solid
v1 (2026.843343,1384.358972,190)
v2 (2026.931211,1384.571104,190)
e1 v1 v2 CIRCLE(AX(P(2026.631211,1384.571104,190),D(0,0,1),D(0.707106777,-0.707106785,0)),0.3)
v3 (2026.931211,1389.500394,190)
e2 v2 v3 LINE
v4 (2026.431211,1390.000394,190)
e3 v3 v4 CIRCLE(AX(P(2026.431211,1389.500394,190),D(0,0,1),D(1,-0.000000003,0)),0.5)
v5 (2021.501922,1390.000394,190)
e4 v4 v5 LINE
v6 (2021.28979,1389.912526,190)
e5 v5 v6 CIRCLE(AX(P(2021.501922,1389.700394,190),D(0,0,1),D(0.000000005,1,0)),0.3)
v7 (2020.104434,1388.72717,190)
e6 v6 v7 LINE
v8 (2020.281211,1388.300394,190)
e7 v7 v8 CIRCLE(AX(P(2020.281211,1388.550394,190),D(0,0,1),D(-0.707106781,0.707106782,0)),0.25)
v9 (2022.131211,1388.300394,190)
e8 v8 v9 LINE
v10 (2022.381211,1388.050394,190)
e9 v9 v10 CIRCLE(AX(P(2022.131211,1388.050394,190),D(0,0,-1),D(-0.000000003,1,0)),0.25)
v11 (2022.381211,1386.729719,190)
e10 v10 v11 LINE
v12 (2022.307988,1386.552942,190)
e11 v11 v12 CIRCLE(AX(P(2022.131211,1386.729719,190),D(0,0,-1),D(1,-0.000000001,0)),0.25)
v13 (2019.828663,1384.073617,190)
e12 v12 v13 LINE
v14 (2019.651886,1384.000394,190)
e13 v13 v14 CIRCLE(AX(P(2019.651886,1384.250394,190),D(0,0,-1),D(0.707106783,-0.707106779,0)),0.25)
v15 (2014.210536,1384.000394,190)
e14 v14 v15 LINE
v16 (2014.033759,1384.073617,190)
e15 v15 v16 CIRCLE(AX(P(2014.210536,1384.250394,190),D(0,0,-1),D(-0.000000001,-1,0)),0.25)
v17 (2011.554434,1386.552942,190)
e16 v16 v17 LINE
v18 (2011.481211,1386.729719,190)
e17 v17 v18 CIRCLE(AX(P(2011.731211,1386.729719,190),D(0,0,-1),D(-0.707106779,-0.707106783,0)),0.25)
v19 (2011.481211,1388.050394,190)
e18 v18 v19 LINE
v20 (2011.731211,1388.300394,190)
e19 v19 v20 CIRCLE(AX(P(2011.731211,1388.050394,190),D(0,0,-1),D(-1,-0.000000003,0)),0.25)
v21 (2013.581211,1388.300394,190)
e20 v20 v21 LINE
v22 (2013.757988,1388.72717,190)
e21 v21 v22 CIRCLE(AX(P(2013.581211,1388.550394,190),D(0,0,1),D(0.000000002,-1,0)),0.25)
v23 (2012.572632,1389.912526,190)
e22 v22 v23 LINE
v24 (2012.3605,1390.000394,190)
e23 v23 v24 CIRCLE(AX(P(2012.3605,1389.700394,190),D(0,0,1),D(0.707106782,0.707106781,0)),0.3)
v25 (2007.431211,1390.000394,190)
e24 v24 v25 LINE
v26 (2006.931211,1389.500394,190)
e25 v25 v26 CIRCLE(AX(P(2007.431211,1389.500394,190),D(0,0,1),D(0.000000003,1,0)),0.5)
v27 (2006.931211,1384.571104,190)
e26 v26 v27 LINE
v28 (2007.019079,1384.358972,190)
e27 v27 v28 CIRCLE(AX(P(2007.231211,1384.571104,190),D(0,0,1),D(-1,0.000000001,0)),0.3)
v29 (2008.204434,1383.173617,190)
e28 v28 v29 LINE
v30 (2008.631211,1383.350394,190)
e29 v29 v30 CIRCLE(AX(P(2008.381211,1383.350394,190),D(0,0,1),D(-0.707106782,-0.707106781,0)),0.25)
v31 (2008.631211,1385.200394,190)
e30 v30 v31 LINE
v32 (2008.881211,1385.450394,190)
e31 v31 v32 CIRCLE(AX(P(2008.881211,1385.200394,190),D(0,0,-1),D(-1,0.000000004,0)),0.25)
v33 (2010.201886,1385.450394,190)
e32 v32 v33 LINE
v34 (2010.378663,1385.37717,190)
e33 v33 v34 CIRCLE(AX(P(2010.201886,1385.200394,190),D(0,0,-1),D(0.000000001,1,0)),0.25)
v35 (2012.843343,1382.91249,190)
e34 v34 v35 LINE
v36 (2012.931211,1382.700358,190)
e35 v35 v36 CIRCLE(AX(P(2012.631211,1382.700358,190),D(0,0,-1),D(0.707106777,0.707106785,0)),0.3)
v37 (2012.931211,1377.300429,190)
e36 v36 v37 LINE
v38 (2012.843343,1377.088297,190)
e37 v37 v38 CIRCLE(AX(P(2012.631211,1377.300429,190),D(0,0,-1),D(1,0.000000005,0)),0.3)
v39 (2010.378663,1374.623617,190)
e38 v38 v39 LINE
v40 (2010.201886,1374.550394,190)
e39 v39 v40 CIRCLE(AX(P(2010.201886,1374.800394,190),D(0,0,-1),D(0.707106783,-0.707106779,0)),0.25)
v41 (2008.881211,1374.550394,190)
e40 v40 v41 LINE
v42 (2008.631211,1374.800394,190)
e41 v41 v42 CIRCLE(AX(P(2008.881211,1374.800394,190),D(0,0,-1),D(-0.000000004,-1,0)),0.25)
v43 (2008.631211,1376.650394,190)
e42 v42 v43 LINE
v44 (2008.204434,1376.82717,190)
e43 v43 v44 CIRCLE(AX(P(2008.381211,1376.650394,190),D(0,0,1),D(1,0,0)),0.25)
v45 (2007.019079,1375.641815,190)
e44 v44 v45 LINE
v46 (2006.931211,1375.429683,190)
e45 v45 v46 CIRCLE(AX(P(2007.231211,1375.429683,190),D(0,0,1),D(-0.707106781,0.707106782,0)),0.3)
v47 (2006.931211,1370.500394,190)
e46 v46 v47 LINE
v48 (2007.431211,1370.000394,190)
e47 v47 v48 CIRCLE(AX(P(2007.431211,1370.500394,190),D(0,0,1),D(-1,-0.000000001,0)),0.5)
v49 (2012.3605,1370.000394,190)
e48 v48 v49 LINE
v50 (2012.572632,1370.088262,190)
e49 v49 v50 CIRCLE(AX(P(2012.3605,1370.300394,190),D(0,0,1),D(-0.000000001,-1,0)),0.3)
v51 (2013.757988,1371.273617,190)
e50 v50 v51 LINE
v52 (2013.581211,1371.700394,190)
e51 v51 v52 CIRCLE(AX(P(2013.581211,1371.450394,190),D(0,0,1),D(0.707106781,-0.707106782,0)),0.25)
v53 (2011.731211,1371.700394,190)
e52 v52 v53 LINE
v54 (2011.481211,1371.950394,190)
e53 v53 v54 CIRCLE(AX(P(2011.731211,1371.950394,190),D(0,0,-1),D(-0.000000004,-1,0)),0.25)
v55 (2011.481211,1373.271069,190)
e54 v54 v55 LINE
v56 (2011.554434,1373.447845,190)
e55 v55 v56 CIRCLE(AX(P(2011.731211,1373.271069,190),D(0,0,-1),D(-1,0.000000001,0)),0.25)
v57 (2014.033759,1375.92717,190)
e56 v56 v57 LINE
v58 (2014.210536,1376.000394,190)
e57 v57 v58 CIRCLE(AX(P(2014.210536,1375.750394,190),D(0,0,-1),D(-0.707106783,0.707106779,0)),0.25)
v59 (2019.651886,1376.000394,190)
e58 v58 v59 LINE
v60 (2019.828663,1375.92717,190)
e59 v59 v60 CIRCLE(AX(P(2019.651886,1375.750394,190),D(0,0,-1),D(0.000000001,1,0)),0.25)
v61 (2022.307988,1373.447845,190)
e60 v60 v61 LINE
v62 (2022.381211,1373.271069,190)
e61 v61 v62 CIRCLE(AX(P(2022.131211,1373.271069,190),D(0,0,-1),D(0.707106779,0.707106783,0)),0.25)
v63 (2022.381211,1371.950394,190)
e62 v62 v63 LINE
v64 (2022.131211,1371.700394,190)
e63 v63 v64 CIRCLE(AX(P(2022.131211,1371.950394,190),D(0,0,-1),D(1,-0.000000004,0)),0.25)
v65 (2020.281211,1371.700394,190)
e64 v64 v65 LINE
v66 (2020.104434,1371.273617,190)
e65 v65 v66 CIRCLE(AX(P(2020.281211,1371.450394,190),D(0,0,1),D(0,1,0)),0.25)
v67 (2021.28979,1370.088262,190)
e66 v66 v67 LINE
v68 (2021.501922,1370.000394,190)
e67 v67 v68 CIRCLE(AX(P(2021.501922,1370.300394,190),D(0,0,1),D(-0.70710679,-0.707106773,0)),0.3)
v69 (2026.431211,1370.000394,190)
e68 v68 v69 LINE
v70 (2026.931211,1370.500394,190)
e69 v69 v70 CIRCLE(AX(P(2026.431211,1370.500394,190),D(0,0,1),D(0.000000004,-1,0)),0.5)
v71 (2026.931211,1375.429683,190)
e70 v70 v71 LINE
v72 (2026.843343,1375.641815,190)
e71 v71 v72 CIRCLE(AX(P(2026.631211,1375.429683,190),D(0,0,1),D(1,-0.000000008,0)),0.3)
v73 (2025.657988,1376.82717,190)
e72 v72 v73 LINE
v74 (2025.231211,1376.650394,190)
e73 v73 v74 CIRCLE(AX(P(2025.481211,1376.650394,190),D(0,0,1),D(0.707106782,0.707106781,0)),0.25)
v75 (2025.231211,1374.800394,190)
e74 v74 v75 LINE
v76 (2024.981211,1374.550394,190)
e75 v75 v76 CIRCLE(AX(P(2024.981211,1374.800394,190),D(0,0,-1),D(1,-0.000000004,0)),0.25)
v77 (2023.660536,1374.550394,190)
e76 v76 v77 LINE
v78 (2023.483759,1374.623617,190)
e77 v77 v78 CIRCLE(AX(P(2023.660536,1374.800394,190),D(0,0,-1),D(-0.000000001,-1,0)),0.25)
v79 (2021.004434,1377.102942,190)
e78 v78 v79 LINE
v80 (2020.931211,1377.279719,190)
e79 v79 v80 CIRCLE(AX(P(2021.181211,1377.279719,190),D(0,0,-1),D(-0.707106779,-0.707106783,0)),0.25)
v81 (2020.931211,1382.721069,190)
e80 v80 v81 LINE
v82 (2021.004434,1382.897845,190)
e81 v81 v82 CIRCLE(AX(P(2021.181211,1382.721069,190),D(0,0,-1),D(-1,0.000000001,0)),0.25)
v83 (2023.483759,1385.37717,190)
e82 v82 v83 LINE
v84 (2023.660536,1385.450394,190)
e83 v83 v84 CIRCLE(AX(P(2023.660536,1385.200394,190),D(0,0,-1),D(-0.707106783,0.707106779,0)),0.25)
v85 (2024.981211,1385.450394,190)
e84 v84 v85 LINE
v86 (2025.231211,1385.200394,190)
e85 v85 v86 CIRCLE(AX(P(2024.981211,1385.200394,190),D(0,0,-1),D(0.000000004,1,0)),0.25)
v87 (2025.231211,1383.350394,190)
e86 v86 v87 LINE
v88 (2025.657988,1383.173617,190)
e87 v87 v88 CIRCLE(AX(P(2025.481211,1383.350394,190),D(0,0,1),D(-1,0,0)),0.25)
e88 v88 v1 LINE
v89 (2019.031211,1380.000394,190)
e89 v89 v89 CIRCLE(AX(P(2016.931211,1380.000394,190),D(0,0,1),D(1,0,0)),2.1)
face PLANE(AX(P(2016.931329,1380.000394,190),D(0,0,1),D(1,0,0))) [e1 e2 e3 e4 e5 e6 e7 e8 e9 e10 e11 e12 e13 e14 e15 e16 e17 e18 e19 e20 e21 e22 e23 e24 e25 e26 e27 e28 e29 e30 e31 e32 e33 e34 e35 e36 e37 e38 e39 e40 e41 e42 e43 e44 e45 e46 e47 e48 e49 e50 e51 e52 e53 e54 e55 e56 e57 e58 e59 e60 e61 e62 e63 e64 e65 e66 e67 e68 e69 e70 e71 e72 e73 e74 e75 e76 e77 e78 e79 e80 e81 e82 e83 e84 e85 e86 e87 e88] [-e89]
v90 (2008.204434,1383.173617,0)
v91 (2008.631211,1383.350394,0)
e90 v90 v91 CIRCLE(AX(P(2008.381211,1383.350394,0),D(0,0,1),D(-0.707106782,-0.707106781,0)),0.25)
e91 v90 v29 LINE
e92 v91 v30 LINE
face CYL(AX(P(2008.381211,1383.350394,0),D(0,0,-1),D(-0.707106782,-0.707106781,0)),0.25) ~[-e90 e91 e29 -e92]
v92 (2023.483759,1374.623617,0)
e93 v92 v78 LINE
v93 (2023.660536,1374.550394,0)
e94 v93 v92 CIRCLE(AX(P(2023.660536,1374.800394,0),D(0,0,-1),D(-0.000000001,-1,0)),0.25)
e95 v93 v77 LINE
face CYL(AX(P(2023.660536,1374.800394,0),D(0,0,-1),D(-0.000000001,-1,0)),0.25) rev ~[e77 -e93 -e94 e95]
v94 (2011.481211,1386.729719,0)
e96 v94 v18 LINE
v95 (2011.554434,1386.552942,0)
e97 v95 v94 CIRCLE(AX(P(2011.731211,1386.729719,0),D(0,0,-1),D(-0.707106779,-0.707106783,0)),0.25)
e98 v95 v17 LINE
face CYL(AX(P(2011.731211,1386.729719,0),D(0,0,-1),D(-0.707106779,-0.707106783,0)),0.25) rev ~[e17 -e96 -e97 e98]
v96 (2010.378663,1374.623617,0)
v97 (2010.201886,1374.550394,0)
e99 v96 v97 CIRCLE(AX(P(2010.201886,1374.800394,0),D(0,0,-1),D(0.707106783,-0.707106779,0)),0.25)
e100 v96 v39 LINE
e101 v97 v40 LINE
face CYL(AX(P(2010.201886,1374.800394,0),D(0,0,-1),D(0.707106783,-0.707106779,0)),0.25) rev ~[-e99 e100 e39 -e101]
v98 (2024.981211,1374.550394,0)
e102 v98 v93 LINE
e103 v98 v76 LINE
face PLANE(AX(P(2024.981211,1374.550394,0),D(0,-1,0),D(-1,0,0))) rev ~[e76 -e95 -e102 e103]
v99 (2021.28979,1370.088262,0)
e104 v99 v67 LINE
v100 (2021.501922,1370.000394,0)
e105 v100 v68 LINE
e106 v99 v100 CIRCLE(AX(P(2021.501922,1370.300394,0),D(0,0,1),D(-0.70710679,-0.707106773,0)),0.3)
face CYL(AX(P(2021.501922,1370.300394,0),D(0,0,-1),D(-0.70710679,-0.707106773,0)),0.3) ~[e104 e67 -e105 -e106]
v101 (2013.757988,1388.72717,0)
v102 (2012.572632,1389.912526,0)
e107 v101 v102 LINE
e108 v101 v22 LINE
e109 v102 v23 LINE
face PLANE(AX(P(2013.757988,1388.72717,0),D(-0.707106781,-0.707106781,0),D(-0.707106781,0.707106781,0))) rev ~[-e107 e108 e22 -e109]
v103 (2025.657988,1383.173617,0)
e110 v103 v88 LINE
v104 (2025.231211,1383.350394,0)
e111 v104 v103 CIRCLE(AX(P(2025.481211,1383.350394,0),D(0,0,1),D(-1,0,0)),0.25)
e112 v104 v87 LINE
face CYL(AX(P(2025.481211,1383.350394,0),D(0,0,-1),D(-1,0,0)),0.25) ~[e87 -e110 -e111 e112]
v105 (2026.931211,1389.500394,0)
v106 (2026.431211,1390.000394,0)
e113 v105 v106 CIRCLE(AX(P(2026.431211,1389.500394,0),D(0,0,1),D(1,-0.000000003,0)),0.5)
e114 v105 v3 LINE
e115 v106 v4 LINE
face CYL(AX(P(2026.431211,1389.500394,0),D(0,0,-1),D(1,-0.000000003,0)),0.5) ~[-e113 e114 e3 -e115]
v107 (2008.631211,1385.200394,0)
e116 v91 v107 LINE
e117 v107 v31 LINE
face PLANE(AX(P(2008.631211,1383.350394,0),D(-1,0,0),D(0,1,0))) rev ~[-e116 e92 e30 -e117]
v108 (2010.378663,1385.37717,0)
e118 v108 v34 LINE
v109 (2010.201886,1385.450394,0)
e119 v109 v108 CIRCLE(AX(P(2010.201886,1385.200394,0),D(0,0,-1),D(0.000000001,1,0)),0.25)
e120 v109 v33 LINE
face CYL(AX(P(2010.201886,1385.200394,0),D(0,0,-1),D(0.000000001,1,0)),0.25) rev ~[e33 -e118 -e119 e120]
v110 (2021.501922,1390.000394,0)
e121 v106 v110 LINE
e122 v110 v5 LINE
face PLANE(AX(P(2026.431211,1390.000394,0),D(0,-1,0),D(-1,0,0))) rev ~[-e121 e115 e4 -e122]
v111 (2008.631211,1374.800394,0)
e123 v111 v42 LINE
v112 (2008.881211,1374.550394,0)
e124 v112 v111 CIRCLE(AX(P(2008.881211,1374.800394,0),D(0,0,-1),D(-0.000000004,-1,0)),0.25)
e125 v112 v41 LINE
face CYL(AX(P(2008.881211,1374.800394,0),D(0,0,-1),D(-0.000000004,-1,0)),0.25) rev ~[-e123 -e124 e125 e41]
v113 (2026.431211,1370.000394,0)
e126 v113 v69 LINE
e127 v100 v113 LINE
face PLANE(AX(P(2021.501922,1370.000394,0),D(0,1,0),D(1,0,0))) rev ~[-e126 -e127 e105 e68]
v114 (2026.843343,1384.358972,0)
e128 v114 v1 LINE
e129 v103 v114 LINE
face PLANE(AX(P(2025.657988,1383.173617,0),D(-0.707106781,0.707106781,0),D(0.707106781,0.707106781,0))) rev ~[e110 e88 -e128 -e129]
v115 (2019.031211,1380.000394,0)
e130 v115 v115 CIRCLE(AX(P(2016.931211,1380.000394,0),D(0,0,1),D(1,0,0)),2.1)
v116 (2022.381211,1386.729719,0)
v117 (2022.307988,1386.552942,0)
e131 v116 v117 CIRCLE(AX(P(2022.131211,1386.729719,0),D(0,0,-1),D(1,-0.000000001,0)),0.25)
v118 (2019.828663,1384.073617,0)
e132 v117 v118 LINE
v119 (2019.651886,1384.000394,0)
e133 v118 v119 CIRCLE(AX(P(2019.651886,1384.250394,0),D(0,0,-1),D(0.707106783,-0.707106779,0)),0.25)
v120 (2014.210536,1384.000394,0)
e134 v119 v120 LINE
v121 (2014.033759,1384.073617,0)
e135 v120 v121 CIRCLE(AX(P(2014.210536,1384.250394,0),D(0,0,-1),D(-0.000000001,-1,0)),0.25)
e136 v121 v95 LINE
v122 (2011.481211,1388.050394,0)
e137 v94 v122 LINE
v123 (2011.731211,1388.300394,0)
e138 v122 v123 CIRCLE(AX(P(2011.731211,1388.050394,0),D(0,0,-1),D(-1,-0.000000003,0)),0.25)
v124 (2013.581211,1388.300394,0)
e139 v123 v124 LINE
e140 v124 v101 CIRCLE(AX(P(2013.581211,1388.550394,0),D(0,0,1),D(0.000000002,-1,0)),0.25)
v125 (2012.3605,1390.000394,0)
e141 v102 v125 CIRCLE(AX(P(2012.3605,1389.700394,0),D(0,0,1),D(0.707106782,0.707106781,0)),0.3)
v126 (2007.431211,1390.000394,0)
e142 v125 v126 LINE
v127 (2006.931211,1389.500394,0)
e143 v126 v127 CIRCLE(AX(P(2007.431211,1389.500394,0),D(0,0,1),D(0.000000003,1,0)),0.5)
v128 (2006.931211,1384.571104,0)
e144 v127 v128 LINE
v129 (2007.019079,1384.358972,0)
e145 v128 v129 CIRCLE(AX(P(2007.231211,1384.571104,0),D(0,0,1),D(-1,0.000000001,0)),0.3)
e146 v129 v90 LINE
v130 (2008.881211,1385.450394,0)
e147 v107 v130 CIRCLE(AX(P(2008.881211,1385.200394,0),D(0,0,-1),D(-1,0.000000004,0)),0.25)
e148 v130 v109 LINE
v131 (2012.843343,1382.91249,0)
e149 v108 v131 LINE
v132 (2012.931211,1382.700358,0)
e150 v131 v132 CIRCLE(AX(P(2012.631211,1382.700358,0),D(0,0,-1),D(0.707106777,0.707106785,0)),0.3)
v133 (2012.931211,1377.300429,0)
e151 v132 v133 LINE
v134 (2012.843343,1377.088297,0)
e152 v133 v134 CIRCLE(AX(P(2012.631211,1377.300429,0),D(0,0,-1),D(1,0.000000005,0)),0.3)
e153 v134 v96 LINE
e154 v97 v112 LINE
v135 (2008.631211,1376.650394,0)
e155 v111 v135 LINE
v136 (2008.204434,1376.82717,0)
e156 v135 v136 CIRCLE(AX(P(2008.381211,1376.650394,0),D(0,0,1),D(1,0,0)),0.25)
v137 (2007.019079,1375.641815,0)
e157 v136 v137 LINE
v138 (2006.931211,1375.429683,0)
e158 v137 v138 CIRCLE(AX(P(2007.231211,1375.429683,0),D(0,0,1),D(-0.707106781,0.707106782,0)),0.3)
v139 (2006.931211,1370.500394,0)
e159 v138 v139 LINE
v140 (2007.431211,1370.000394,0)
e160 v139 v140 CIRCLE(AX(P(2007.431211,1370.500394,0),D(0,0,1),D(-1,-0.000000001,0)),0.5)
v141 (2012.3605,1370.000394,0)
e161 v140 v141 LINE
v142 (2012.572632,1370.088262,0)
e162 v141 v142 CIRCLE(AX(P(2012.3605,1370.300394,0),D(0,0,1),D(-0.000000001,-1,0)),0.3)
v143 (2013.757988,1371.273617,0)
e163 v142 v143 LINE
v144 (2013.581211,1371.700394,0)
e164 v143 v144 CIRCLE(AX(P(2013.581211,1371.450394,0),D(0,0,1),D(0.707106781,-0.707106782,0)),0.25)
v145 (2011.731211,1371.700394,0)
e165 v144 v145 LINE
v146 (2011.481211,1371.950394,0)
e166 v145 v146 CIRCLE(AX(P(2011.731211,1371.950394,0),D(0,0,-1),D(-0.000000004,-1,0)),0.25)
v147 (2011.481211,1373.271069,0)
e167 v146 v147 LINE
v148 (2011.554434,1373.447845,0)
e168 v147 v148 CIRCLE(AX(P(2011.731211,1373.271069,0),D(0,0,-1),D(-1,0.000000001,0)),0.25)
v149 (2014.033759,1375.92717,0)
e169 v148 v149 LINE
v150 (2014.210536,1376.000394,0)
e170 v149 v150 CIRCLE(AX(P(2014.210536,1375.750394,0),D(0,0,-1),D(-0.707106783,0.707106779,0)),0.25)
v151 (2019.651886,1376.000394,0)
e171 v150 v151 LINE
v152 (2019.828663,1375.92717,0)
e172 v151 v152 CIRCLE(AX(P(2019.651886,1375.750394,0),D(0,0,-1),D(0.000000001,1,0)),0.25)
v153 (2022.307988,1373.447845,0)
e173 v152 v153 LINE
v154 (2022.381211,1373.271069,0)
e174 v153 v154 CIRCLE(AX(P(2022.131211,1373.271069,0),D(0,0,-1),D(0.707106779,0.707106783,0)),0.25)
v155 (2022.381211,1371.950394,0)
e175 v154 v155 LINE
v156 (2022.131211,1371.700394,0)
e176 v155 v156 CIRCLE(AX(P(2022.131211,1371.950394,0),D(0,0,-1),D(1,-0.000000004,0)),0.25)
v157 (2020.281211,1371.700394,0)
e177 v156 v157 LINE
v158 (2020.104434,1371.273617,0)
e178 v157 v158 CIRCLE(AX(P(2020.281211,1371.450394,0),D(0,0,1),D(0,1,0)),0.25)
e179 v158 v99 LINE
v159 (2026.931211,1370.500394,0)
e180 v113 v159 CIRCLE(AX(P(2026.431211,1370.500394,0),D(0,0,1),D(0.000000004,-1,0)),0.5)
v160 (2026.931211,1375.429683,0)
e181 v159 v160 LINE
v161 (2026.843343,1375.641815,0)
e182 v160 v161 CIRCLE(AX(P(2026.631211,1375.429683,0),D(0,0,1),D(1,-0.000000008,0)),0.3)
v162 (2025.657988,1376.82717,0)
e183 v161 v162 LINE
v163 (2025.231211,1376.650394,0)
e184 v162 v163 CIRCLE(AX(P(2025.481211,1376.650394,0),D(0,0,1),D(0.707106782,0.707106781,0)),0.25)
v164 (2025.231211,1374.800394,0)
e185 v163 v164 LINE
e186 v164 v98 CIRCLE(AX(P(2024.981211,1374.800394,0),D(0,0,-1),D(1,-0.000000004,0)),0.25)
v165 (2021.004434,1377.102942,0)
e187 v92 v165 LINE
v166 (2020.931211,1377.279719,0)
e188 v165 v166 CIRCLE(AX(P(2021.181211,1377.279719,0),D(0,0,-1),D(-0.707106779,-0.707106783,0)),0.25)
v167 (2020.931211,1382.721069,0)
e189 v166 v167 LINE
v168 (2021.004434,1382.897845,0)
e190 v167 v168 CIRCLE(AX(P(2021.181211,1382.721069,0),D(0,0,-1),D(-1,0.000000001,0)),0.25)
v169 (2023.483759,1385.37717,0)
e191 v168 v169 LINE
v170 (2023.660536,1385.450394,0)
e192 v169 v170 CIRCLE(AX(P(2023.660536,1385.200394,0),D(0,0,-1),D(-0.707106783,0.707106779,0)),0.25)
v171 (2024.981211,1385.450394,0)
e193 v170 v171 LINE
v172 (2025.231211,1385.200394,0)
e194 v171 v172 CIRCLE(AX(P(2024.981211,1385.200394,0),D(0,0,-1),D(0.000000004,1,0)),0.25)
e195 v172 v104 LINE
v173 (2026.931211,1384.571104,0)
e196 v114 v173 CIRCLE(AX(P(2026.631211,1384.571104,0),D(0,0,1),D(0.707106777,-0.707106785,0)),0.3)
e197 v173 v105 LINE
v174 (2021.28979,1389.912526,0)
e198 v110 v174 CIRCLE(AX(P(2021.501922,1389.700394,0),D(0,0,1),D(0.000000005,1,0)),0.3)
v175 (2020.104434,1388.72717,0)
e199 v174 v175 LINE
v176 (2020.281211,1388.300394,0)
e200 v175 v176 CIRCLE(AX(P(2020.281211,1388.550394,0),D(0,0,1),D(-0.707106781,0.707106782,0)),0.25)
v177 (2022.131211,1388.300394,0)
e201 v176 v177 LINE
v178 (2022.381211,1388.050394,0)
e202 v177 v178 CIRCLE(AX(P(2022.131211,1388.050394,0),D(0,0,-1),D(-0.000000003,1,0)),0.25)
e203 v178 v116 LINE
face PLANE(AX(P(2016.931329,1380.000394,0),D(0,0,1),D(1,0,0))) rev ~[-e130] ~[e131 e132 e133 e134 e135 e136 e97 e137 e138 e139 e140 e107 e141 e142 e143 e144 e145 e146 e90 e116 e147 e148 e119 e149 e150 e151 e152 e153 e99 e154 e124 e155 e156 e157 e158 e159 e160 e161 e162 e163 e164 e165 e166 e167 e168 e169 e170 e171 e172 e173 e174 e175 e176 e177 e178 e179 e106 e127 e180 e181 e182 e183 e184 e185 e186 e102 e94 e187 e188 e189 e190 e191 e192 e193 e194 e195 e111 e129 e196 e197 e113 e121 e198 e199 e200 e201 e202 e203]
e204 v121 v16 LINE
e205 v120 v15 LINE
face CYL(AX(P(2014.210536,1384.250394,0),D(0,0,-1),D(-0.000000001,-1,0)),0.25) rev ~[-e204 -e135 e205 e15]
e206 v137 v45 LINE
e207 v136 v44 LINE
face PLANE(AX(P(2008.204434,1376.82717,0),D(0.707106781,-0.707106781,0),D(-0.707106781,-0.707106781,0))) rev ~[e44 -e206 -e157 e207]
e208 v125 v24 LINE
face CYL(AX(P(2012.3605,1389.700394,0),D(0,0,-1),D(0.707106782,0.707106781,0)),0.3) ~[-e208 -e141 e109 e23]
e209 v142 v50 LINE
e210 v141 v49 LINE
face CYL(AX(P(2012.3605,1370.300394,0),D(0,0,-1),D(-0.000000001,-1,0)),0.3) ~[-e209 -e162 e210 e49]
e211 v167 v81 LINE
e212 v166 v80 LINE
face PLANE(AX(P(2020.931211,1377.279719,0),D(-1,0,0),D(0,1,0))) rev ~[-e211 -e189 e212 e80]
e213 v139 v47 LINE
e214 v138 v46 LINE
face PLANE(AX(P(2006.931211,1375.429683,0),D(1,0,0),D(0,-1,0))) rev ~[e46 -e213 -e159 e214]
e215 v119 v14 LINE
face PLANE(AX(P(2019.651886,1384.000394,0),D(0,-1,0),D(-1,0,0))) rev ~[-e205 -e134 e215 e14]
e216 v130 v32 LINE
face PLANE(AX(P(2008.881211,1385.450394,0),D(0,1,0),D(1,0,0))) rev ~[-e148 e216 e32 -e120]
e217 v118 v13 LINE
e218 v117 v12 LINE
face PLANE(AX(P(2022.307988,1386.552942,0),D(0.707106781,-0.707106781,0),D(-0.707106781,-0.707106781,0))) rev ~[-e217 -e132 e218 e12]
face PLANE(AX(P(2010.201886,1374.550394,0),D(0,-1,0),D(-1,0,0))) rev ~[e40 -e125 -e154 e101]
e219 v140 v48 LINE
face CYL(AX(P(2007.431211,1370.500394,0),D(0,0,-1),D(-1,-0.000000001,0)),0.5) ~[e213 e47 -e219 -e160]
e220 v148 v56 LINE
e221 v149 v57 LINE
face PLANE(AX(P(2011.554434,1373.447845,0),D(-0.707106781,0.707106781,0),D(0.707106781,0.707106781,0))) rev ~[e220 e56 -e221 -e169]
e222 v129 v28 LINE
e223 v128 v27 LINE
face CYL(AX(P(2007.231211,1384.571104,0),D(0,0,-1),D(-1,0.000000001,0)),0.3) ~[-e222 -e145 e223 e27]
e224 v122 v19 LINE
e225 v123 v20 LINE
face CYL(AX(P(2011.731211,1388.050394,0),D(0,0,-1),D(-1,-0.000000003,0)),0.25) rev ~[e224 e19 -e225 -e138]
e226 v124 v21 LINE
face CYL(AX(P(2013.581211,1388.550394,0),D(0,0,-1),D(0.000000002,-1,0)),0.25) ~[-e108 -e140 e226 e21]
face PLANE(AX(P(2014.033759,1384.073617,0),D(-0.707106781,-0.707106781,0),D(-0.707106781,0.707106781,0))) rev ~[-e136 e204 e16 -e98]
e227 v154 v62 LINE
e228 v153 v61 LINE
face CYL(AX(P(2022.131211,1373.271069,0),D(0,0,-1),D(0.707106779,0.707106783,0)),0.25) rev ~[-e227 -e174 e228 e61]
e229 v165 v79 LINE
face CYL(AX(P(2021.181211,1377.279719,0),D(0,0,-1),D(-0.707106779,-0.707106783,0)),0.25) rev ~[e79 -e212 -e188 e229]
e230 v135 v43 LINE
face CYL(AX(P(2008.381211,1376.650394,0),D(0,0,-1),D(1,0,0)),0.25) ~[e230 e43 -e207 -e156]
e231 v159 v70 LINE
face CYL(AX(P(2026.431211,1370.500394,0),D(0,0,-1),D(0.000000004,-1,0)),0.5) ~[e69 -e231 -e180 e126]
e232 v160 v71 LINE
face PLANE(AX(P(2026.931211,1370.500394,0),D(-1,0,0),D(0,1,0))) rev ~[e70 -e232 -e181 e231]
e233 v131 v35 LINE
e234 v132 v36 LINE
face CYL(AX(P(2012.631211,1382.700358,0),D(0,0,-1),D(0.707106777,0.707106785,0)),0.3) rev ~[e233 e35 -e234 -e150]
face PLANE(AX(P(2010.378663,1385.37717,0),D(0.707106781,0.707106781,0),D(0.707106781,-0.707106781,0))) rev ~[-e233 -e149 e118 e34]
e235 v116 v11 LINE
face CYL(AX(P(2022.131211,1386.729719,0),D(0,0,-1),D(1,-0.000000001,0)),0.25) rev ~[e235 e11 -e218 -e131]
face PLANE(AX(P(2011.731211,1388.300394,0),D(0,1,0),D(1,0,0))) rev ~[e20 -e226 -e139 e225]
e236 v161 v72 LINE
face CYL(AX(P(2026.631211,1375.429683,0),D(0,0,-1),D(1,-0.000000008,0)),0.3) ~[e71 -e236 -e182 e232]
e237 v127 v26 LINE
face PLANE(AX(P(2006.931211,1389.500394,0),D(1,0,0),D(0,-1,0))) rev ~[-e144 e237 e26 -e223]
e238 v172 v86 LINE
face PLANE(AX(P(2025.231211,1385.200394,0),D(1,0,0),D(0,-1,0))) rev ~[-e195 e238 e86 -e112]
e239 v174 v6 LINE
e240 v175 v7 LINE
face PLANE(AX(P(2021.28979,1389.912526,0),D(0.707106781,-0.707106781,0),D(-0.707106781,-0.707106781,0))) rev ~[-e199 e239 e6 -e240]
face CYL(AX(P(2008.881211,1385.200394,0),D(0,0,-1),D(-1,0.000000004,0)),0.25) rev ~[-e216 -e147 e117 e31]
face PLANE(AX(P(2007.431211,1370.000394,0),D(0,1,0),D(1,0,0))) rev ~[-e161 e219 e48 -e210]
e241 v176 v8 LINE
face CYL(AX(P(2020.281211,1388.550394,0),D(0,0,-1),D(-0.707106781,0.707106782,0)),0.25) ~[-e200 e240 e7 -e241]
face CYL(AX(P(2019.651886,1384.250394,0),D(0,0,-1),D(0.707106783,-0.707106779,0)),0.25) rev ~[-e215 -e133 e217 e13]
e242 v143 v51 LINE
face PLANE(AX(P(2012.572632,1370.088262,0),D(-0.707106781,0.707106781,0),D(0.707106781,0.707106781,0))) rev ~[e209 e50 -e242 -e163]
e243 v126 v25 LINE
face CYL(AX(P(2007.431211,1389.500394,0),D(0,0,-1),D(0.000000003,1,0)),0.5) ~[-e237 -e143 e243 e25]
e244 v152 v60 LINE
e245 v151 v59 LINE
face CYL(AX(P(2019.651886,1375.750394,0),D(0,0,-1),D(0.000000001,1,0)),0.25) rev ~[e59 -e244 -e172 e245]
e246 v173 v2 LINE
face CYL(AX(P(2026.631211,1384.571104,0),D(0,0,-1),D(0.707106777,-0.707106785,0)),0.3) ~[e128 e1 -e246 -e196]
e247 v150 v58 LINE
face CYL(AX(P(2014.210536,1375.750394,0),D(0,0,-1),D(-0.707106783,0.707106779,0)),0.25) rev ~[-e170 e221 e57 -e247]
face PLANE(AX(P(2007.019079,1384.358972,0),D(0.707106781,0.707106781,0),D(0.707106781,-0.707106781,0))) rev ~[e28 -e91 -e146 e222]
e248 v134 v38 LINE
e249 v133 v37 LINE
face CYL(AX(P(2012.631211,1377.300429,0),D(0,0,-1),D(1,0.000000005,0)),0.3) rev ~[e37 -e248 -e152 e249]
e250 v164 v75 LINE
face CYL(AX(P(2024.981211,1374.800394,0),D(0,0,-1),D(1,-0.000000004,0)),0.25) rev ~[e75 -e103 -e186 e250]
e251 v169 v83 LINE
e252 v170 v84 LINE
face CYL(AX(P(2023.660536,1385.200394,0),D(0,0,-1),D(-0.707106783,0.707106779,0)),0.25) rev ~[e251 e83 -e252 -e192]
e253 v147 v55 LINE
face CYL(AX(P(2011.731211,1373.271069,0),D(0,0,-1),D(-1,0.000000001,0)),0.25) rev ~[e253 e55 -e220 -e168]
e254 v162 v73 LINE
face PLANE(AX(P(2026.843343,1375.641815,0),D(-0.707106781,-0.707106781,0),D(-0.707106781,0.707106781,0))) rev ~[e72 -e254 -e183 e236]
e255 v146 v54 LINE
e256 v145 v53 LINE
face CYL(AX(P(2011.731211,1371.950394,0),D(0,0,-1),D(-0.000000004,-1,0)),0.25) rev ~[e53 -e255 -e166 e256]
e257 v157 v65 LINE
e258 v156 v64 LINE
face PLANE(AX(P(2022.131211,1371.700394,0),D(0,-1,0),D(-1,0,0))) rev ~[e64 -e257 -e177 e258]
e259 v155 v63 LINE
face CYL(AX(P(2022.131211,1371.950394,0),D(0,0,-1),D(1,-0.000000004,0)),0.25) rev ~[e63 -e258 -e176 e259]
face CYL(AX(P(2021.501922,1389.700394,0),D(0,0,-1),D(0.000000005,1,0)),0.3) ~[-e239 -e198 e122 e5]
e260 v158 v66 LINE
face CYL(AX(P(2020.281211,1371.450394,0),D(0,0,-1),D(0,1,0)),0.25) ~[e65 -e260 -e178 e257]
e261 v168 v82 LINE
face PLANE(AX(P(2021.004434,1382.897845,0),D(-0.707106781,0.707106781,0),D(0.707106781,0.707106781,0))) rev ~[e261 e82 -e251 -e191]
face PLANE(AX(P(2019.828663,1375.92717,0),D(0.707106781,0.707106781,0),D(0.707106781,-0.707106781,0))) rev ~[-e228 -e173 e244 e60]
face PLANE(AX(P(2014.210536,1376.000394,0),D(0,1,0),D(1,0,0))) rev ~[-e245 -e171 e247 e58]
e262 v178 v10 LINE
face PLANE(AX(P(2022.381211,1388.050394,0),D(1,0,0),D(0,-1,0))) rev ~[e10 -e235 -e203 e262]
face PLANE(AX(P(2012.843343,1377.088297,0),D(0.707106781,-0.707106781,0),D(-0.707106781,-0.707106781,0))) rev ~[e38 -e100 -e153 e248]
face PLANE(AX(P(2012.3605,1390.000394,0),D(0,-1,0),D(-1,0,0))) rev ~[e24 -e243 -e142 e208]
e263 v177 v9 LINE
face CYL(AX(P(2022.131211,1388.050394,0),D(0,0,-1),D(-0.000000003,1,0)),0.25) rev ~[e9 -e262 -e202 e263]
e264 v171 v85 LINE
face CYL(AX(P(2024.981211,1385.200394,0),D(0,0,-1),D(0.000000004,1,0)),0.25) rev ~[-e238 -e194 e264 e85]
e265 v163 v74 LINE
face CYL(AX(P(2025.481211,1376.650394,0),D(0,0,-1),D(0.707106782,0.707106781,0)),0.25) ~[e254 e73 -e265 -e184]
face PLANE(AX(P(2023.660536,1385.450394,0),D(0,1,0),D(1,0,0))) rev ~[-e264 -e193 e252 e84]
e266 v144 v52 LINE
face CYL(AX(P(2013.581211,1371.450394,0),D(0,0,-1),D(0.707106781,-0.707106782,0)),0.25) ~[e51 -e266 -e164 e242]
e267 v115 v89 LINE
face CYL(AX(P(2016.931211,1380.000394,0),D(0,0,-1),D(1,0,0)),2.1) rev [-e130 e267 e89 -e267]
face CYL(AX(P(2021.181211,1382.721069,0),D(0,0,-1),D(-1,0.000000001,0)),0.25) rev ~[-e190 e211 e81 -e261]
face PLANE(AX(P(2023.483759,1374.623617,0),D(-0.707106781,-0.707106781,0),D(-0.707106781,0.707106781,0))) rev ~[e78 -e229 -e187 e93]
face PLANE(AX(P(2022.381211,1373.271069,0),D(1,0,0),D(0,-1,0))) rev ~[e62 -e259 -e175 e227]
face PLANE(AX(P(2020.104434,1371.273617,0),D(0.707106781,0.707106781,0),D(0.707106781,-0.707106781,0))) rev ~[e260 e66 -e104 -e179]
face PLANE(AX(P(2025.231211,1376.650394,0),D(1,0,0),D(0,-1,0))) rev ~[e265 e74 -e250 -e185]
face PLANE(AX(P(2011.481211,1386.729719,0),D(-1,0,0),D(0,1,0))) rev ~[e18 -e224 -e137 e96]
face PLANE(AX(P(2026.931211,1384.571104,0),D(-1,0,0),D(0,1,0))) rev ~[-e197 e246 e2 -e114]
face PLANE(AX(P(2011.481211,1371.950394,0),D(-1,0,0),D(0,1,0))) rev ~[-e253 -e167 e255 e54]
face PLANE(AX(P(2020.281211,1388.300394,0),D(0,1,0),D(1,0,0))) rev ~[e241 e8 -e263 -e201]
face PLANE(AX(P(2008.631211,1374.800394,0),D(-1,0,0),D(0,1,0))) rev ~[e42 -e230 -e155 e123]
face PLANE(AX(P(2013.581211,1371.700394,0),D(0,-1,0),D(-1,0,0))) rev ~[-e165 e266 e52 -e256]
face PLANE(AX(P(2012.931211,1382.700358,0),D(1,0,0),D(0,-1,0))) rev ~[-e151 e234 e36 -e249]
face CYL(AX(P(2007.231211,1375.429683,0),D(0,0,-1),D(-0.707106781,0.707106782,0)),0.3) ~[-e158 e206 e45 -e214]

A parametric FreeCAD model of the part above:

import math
import FreeCAD as App
import Part
import Sketcher
from FreeCAD import Vector
Q = App.Units.Quantity

doc = App.newDocument("Part")
body = doc.addObject("PartDesign::Body", "Body")

# Sketch on XY plane
sketch1 = body.newObject("Sketcher::SketchObject", "Sketch")
sketch1.AttachmentSupport = (doc.getObject("XY_Plane"), [""])
sketch1.MapMode = "FlatFace"
sketch1.addGeometry([
    Part.ArcOfCircle(Part.Circle(Vector(2012.63, 1377.3, 0), Vector(0, 0, 1), 0.3), math.radians(-45), math.radians(0)),  # 0
    Part.LineSegment(Vector(2012.84, 1377.09, 0), Vector(2010.38, 1374.62, 0)),  # 1
    Part.ArcOfCircle(Part.Circle(Vector(2010.2, 1374.8, 0), Vector(0, 0, 1), 0.25), math.radians(-90), math.radians(-45)),  # 2
    Part.LineSegment(Vector(2010.2, 1374.55, 0), Vector(2008.88, 1374.55, 0)),  # 3
    Part.ArcOfCircle(Part.Circle(Vector(2008.88, 1374.8, 0), Vector(0, 0, 1), 0.25), math.radians(-180), math.radians(-90)),  # 4
    Part.LineSegment(Vector(2008.63, 1374.8, 0), Vector(2008.63, 1376.65, 0)),  # 5
    Part.ArcOfCircle(Part.Circle(Vector(2008.38, 1376.65, 0), Vector(0, 0, 1), 0.25), math.radians(0), math.radians(135)),  # 6
    Part.LineSegment(Vector(2008.2, 1376.83, 0), Vector(2007.02, 1375.64, 0)),  # 7
    Part.ArcOfCircle(Part.Circle(Vector(2007.23, 1375.43, 0), Vector(0, 0, 1), 0.3), math.radians(135), math.radians(180)),  # 8
    Part.LineSegment(Vector(2006.93, 1375.43, 0), Vector(2006.93, 1370.5, 0)),  # 9
    Part.ArcOfCircle(Part.Circle(Vector(2007.43, 1370.5, 0), Vector(0, 0, 1), 0.5), math.radians(180), math.radians(270)),  # 10
    Part.LineSegment(Vector(2007.43, 1370, 0), Vector(2012.36, 1370, 0)),  # 11
    Part.ArcOfCircle(Part.Circle(Vector(2012.36, 1370.3, 0), Vector(0, 0, 1), 0.3), math.radians(-90), math.radians(-45)),  # 12
    Part.LineSegment(Vector(2012.57, 1370.09, 0), Vector(2013.76, 1371.27, 0)),  # 13
    Part.ArcOfCircle(Part.Circle(Vector(2013.58, 1371.45, 0), Vector(0, 0, 1), 0.25), math.radians(-45), math.radians(90)),  # 14
    Part.LineSegment(Vector(2013.58, 1371.7, 0), Vector(2011.73, 1371.7, 0)),  # 15
    Part.ArcOfCircle(Part.Circle(Vector(2011.73, 1371.95, 0), Vector(0, 0, 1), 0.25), math.radians(-180), math.radians(-90)),  # 16
    Part.LineSegment(Vector(2011.48, 1371.95, 0), Vector(2011.48, 1373.27, 0)),  # 17
    Part.ArcOfCircle(Part.Circle(Vector(2011.73, 1373.27, 0), Vector(0, 0, 1), 0.25), math.radians(135), math.radians(180)),  # 18
    Part.LineSegment(Vector(2011.55, 1373.45, 0), Vector(2014.03, 1375.93, 0)),  # 19
    Part.ArcOfCircle(Part.Circle(Vector(2014.21, 1375.75, 0), Vector(0, 0, 1), 0.25), math.radians(90), math.radians(135)),  # 20
    Part.LineSegment(Vector(2014.21, 1376, 0), Vector(2019.65, 1376, 0)),  # 21
    Part.ArcOfCircle(Part.Circle(Vector(2019.65, 1375.75, 0), Vector(0, 0, 1), 0.25), math.radians(45), math.radians(90)),  # 22
    Part.LineSegment(Vector(2019.83, 1375.93, 0), Vector(2022.31, 1373.45, 0)),  # 23
    Part.ArcOfCircle(Part.Circle(Vector(2022.13, 1373.27, 0), Vector(0, 0, 1), 0.25), math.radians(0), math.radians(45)),  # 24
    Part.LineSegment(Vector(2022.38, 1373.27, 0), Vector(2022.38, 1371.95, 0)),  # 25
    Part.ArcOfCircle(Part.Circle(Vector(2022.13, 1371.95, 0), Vector(0, 0, 1), 0.25), math.radians(-90), math.radians(0)),  # 26
    Part.LineSegment(Vector(2022.13, 1371.7, 0), Vector(2020.28, 1371.7, 0)),  # 27
    Part.ArcOfCircle(Part.Circle(Vector(2020.28, 1371.45, 0), Vector(0, 0, 1), 0.25), math.radians(90), math.radians(225)),  # 28
    Part.LineSegment(Vector(2020.1, 1371.27, 0), Vector(2021.29, 1370.09, 0)),  # 29
    Part.ArcOfCircle(Part.Circle(Vector(2021.5, 1370.3, 0), Vector(0, 0, 1), 0.3), math.radians(-135), math.radians(-90)),  # 30
    Part.LineSegment(Vector(2021.5, 1370, 0), Vector(2026.43, 1370, 0)),  # 31
    Part.ArcOfCircle(Part.Circle(Vector(2026.43, 1370.5, 0), Vector(0, 0, 1), 0.5), math.radians(-90), math.radians(0)),  # 32
    Part.LineSegment(Vector(2026.93, 1370.5, 0), Vector(2026.93, 1375.43, 0)),  # 33
    Part.ArcOfCircle(Part.Circle(Vector(2026.63, 1375.43, 0), Vector(0, 0, 1), 0.3), math.radians(0), math.radians(45)),  # 34
    Part.LineSegment(Vector(2026.84, 1375.64, 0), Vector(2025.66, 1376.83, 0)),  # 35
    Part.ArcOfCircle(Part.Circle(Vector(2025.48, 1376.65, 0), Vector(0, 0, 1), 0.25), math.radians(45), math.radians(180)),  # 36
    Part.LineSegment(Vector(2025.23, 1376.65, 0), Vector(2025.23, 1374.8, 0)),  # 37
    Part.ArcOfCircle(Part.Circle(Vector(2024.98, 1374.8, 0), Vector(0, 0, 1), 0.25), math.radians(-90), math.radians(0)),  # 38
    Part.LineSegment(Vector(2024.98, 1374.55, 0), Vector(2023.66, 1374.55, 0)),  # 39
    Part.ArcOfCircle(Part.Circle(Vector(2023.66, 1374.8, 0), Vector(0, 0, 1), 0.25), math.radians(-135), math.radians(-90)),  # 40
    Part.LineSegment(Vector(2023.48, 1374.62, 0), Vector(2021, 1377.1, 0)),  # 41
    Part.ArcOfCircle(Part.Circle(Vector(2021.18, 1377.28, 0), Vector(0, 0, 1), 0.25), math.radians(180), math.radians(225)),  # 42
    Part.LineSegment(Vector(2020.93, 1377.28, 0), Vector(2020.93, 1382.72, 0)),  # 43
    Part.ArcOfCircle(Part.Circle(Vector(2021.18, 1382.72, 0), Vector(0, 0, 1), 0.25), math.radians(135), math.radians(180)),  # 44
    Part.LineSegment(Vector(2021, 1382.9, 0), Vector(2023.48, 1385.38, 0)),  # 45
    Part.ArcOfCircle(Part.Circle(Vector(2023.66, 1385.2, 0), Vector(0, 0, 1), 0.25), math.radians(90), math.radians(135)),  # 46
    Part.LineSegment(Vector(2023.66, 1385.45, 0), Vector(2024.98, 1385.45, 0)),  # 47
    Part.ArcOfCircle(Part.Circle(Vector(2024.98, 1385.2, 0), Vector(0, 0, 1), 0.25), math.radians(0), math.radians(90)),  # 48
    Part.LineSegment(Vector(2025.23, 1385.2, 0), Vector(2025.23, 1383.35, 0)),  # 49
    Part.ArcOfCircle(Part.Circle(Vector(2025.48, 1383.35, 0), Vector(0, 0, 1), 0.25), math.radians(180), math.radians(315)),  # 50
    Part.LineSegment(Vector(2025.66, 1383.17, 0), Vector(2026.84, 1384.36, 0)),  # 51
    Part.ArcOfCircle(Part.Circle(Vector(2026.63, 1384.57, 0), Vector(0, 0, 1), 0.3), math.radians(-45), math.radians(0)),  # 52
    Part.LineSegment(Vector(2026.93, 1384.57, 0), Vector(2026.93, 1389.5, 0)),  # 53
    Part.ArcOfCircle(Part.Circle(Vector(2026.43, 1389.5, 0), Vector(0, 0, 1), 0.5), math.radians(0), math.radians(90)),  # 54
    Part.LineSegment(Vector(2026.43, 1390, 0), Vector(2021.5, 1390, 0)),  # 55
    Part.ArcOfCircle(Part.Circle(Vector(2021.5, 1389.7, 0), Vector(0, 0, 1), 0.3), math.radians(90), math.radians(135)),  # 56
    Part.LineSegment(Vector(2021.29, 1389.91, 0), Vector(2020.1, 1388.73, 0)),  # 57
    Part.ArcOfCircle(Part.Circle(Vector(2020.28, 1388.55, 0), Vector(0, 0, 1), 0.25), math.radians(135), math.radians(270)),  # 58
    Part.LineSegment(Vector(2020.28, 1388.3, 0), Vector(2022.13, 1388.3, 0)),  # 59
    Part.ArcOfCircle(Part.Circle(Vector(2022.13, 1388.05, 0), Vector(0, 0, 1), 0.25), math.radians(0), math.radians(90)),  # 60
    Part.LineSegment(Vector(2022.38, 1388.05, 0), Vector(2022.38, 1386.73, 0)),  # 61
    Part.ArcOfCircle(Part.Circle(Vector(2022.13, 1386.73, 0), Vector(0, 0, 1), 0.25), math.radians(-45), math.radians(0)),  # 62
    Part.LineSegment(Vector(2022.31, 1386.55, 0), Vector(2019.83, 1384.07, 0)),  # 63
    Part.ArcOfCircle(Part.Circle(Vector(2019.65, 1384.25, 0), Vector(0, 0, 1), 0.25), math.radians(-90), math.radians(-45)),  # 64
    Part.LineSegment(Vector(2019.65, 1384, 0), Vector(2014.21, 1384, 0)),  # 65
    Part.ArcOfCircle(Part.Circle(Vector(2014.21, 1384.25, 0), Vector(0, 0, 1), 0.25), math.radians(-135), math.radians(-90)),  # 66
    Part.LineSegment(Vector(2014.03, 1384.07, 0), Vector(2011.55, 1386.55, 0)),  # 67
    Part.ArcOfCircle(Part.Circle(Vector(2011.73, 1386.73, 0), Vector(0, 0, 1), 0.25), math.radians(180), math.radians(225)),  # 68
    Part.LineSegment(Vector(2011.48, 1386.73, 0), Vector(2011.48, 1388.05, 0)),  # 69
    Part.ArcOfCircle(Part.Circle(Vector(2011.73, 1388.05, 0), Vector(0, 0, 1), 0.25), math.radians(90), math.radians(180)),  # 70
    Part.LineSegment(Vector(2011.73, 1388.3, 0), Vector(2013.58, 1388.3, 0)),  # 71
    Part.ArcOfCircle(Part.Circle(Vector(2013.58, 1388.55, 0), Vector(0, 0, 1), 0.25), math.radians(-90), math.radians(45)),  # 72
    Part.LineSegment(Vector(2013.76, 1388.73, 0), Vector(2012.57, 1389.91, 0)),  # 73
    Part.ArcOfCircle(Part.Circle(Vector(2012.36, 1389.7, 0), Vector(0, 0, 1), 0.3), math.radians(45), math.radians(90)),  # 74
    Part.LineSegment(Vector(2012.36, 1390, 0), Vector(2007.43, 1390, 0)),  # 75
    Part.ArcOfCircle(Part.Circle(Vector(2007.43, 1389.5, 0), Vector(0, 0, 1), 0.5), math.radians(90), math.radians(180)),  # 76
    Part.LineSegment(Vector(2006.93, 1389.5, 0), Vector(2006.93, 1384.57, 0)),  # 77
    Part.ArcOfCircle(Part.Circle(Vector(2007.23, 1384.57, 0), Vector(0, 0, 1), 0.3), math.radians(180), math.radians(225)),  # 78
    Part.LineSegment(Vector(2007.02, 1384.36, 0), Vector(2008.2, 1383.17, 0)),  # 79
    Part.ArcOfCircle(Part.Circle(Vector(2008.38, 1383.35, 0), Vector(0, 0, 1), 0.25), math.radians(-135), math.radians(0)),  # 80
    Part.LineSegment(Vector(2008.63, 1383.35, 0), Vector(2008.63, 1385.2, 0)),  # 81
    Part.ArcOfCircle(Part.Circle(Vector(2008.88, 1385.2, 0), Vector(0, 0, 1), 0.25), math.radians(90), math.radians(180)),  # 82
    Part.LineSegment(Vector(2008.88, 1385.45, 0), Vector(2010.2, 1385.45, 0)),  # 83
    Part.ArcOfCircle(Part.Circle(Vector(2010.2, 1385.2, 0), Vector(0, 0, 1), 0.25), math.radians(45), math.radians(90)),  # 84
    Part.LineSegment(Vector(2010.38, 1385.38, 0), Vector(2012.84, 1382.91, 0)),  # 85
    Part.ArcOfCircle(Part.Circle(Vector(2012.63, 1382.7, 0), Vector(0, 0, 1), 0.3), math.radians(0), math.radians(45)),  # 86
    Part.LineSegment(Vector(2012.93, 1382.7, 0), Vector(2012.93, 1377.3, 0)),  # 87
    Part.Circle(Vector(2016.93, 1380, 0), Vector(0, 0, 1), 2.1),  # 88
], False)
sketch1.addConstraint([
    Sketcher.Constraint("Tangent", 0, 1, 1, 1),
    Sketcher.Constraint("Tangent", 1, 2, 2, 2),
    Sketcher.Constraint("Tangent", 2, 1, 3, 1),
    Sketcher.Constraint("Tangent", 3, 2, 4, 2),
    Sketcher.Constraint("Tangent", 4, 1, 5, 1),
    Sketcher.Constraint("Tangent", 5, 2, 6, 1),
    Sketcher.Constraint("Tangent", 6, 2, 7, 1),
    Sketcher.Constraint("Tangent", 7, 2, 8, 1),
    Sketcher.Constraint("Tangent", 8, 2, 9, 1),
    Sketcher.Constraint("Tangent", 9, 2, 10, 1),
    Sketcher.Constraint("Tangent", 10, 2, 11, 1),
    Sketcher.Constraint("Tangent", 11, 2, 12, 1),
    Sketcher.Constraint("Tangent", 12, 2, 13, 1),
    Sketcher.Constraint("Tangent", 13, 2, 14, 1),
    Sketcher.Constraint("Tangent", 14, 2, 15, 1),
    Sketcher.Constraint("Tangent", 15, 2, 16, 2),
    Sketcher.Constraint("Tangent", 16, 1, 17, 1),
    Sketcher.Constraint("Tangent", 17, 2, 18, 2),
    Sketcher.Constraint("Tangent", 18, 1, 19, 1),
    Sketcher.Constraint("Tangent", 19, 2, 20, 2),
    Sketcher.Constraint("Tangent", 20, 1, 21, 1),
    Sketcher.Constraint("Tangent", 21, 2, 22, 2),
    Sketcher.Constraint("Tangent", 22, 1, 23, 1),
    Sketcher.Constraint("Tangent", 23, 2, 24, 2),
    Sketcher.Constraint("Tangent", 24, 1, 25, 1),
    Sketcher.Constraint("Tangent", 25, 2, 26, 2),
    Sketcher.Constraint("Tangent", 26, 1, 27, 1),
    Sketcher.Constraint("Tangent", 27, 2, 28, 1),
    Sketcher.Constraint("Tangent", 28, 2, 29, 1),
    Sketcher.Constraint("Tangent", 29, 2, 30, 1),
    Sketcher.Constraint("Tangent", 30, 2, 31, 1),
    Sketcher.Constraint("Tangent", 31, 2, 32, 1),
    Sketcher.Constraint("Tangent", 32, 2, 33, 1),
    Sketcher.Constraint("Tangent", 33, 2, 34, 1),
    Sketcher.Constraint("Tangent", 34, 2, 35, 1),
    Sketcher.Constraint("Tangent", 35, 2, 36, 1),
    Sketcher.Constraint("Tangent", 36, 2, 37, 1),
    Sketcher.Constraint("Tangent", 37, 2, 38, 2),
    Sketcher.Constraint("Tangent", 38, 1, 39, 1),
    Sketcher.Constraint("Tangent", 39, 2, 40, 2),
    Sketcher.Constraint("Tangent", 40, 1, 41, 1),
    Sketcher.Constraint("Tangent", 41, 2, 42, 2),
    Sketcher.Constraint("Tangent", 42, 1, 43, 1),
    Sketcher.Constraint("Tangent", 43, 2, 44, 2),
    Sketcher.Constraint("Tangent", 44, 1, 45, 1),
    Sketcher.Constraint("Tangent", 45, 2, 46, 2),
    Sketcher.Constraint("Tangent", 46, 1, 47, 1),
    Sketcher.Constraint("Tangent", 47, 2, 48, 2),
    Sketcher.Constraint("Tangent", 48, 1, 49, 1),
    Sketcher.Constraint("Tangent", 49, 2, 50, 1),
    Sketcher.Constraint("Tangent", 50, 2, 51, 1),
    Sketcher.Constraint("Tangent", 51, 2, 52, 1),
    Sketcher.Constraint("Tangent", 52, 2, 53, 1),
    Sketcher.Constraint("Tangent", 53, 2, 54, 1),
    Sketcher.Constraint("Tangent", 54, 2, 55, 1),
    Sketcher.Constraint("Tangent", 55, 2, 56, 1),
    Sketcher.Constraint("Tangent", 56, 2, 57, 1),
    Sketcher.Constraint("Tangent", 57, 2, 58, 1),
    Sketcher.Constraint("Tangent", 58, 2, 59, 1),
    Sketcher.Constraint("Tangent", 59, 2, 60, 2),
    Sketcher.Constraint("Tangent", 60, 1, 61, 1),
    Sketcher.Constraint("Tangent", 61, 2, 62, 2),
    Sketcher.Constraint("Tangent", 62, 1, 63, 1),
    Sketcher.Constraint("Tangent", 63, 2, 64, 2),
    Sketcher.Constraint("Tangent", 64, 1, 65, 1),
    Sketcher.Constraint("Tangent", 65, 2, 66, 2),
    Sketcher.Constraint("Tangent", 66, 1, 67, 1),
    Sketcher.Constraint("Tangent", 67, 2, 68, 2),
    Sketcher.Constraint("Tangent", 68, 1, 69, 1),
    Sketcher.Constraint("Tangent", 69, 2, 70, 2),
    Sketcher.Constraint("Tangent", 70, 1, 71, 1),
    Sketcher.Constraint("Tangent", 71, 2, 72, 1),
    Sketcher.Constraint("Tangent", 72, 2, 73, 1),
    Sketcher.Constraint("Tangent", 73, 2, 74, 1),
    Sketcher.Constraint("Tangent", 74, 2, 75, 1),
    Sketcher.Constraint("Tangent", 75, 2, 76, 1),
    Sketcher.Constraint("Tangent", 76, 2, 77, 1),
    Sketcher.Constraint("Tangent", 77, 2, 78, 1),
    Sketcher.Constraint("Tangent", 78, 2, 79, 1),
    Sketcher.Constraint("Tangent", 79, 2, 80, 1),
    Sketcher.Constraint("Tangent", 80, 2, 81, 1),
    Sketcher.Constraint("Tangent", 81, 2, 82, 2),
    Sketcher.Constraint("Tangent", 82, 1, 83, 1),
    Sketcher.Constraint("Tangent", 83, 2, 84, 2),
    Sketcher.Constraint("Tangent", 84, 1, 85, 1),
    Sketcher.Constraint("Tangent", 85, 2, 86, 2),
    Sketcher.Constraint("Tangent", 86, 1, 87, 1),
    Sketcher.Constraint("Tangent", 87, 2, 0, 2),
    Sketcher.Constraint("Horizontal", 3),
    Sketcher.Constraint("Vertical", 5),
    Sketcher.Constraint("Vertical", 9),
    Sketcher.Constraint("Horizontal", 11),
    Sketcher.Constraint("Horizontal", 15),
    Sketcher.Constraint("Vertical", 17),
    Sketcher.Constraint("Horizontal", 21),
    Sketcher.Constraint("Vertical", 25),
    Sketcher.Constraint("Horizontal", 27),
    Sketcher.Constraint("Horizontal", 31),
    Sketcher.Constraint("Vertical", 33),
    Sketcher.Constraint("Vertical", 37),
    Sketcher.Constraint("Horizontal", 39),
    Sketcher.Constraint("Vertical", 43),
    Sketcher.Constraint("Horizontal", 47),
    Sketcher.Constraint("Vertical", 49),
    Sketcher.Constraint("Vertical", 53),
    Sketcher.Constraint("Horizontal", 55),
    Sketcher.Constraint("Horizontal", 59),
    Sketcher.Constraint("Vertical", 61),
    Sketcher.Constraint("Horizontal", 65),
    Sketcher.Constraint("Vertical", 69),
    Sketcher.Constraint("Horizontal", 71),
    Sketcher.Constraint("Horizontal", 75),
    Sketcher.Constraint("Vertical", 77),
    Sketcher.Constraint("Vertical", 81),
    Sketcher.Constraint("Horizontal", 83),
    Sketcher.Constraint("Vertical", 87),
    Sketcher.Constraint("Equal", 2, 4),
    Sketcher.Constraint("Equal", 4, 6),
    Sketcher.Constraint("Equal", 0, 8),
    Sketcher.Constraint("Equal", 8, 12),
    Sketcher.Constraint("Equal", 6, 14),
    Sketcher.Constraint("Equal", 14, 16),
    Sketcher.Constraint("Equal", 16, 18),
    Sketcher.Constraint("Equal", 18, 20),
    Sketcher.Constraint("Equal", 20, 22),
    Sketcher.Constraint("Equal", 22, 24),
    Sketcher.Constraint("Equal", 24, 26),
    Sketcher.Constraint("Equal", 26, 28),
    Sketcher.Constraint("Equal", 12, 30),
    Sketcher.Constraint("Equal", 10, 32),
    Sketcher.Constraint("Equal", 30, 34),
    Sketcher.Constraint("Equal", 28, 36),
    Sketcher.Constraint("Equal", 36, 38),
    Sketcher.Constraint("Equal", 38, 40),
    Sketcher.Constraint("Equal", 40, 42),
    Sketcher.Constraint("Equal", 42, 44),
    Sketcher.Constraint("Equal", 44, 46),
    Sketcher.Constraint("Equal", 46, 48),
    Sketcher.Constraint("Equal", 48, 50),
    Sketcher.Constraint("Equal", 34, 52),
    Sketcher.Constraint("Equal", 32, 54),
    Sketcher.Constraint("Equal", 52, 56),
    Sketcher.Constraint("Equal", 50, 58),
    Sketcher.Constraint("Equal", 58, 60),
    Sketcher.Constraint("Equal", 60, 62),
    Sketcher.Constraint("Equal", 62, 64),
    Sketcher.Constraint("Equal", 64, 66),
    Sketcher.Constraint("Equal", 66, 68),
    Sketcher.Constraint("Equal", 68, 70),
    Sketcher.Constraint("Equal", 70, 72),
    Sketcher.Constraint("Equal", 56, 74),
    Sketcher.Constraint("Equal", 54, 76),
    Sketcher.Constraint("Equal", 74, 78),
    Sketcher.Constraint("Equal", 72, 80),
    Sketcher.Constraint("Equal", 80, 82),
    Sketcher.Constraint("Equal", 82, 84),
    Sketcher.Constraint("Equal", 78, 86),
    Sketcher.Constraint("Parallel", 1, 7),
    Sketcher.Constraint("Parallel", 7, 13),
    Sketcher.Constraint("Parallel", 13, 19),
    Sketcher.Constraint("Perpendicular", 19, 23),
    Sketcher.Constraint("Parallel", 23, 29),
    Sketcher.Constraint("Parallel", 29, 35),
    Sketcher.Constraint("Parallel", 35, 41),
    Sketcher.Constraint("Perpendicular", 41, 45),
    Sketcher.Constraint("Parallel", 45, 51),
    Sketcher.Constraint("Parallel", 51, 57),
    Sketcher.Constraint("Parallel", 57, 63),
    Sketcher.Constraint("Perpendicular", 63, 67),
    Sketcher.Constraint("Parallel", 67, 73),
    Sketcher.Constraint("Parallel", 73, 79),
    Sketcher.Constraint("Parallel", 79, 85),
    Sketcher.Constraint("Horizontal", 18, 3, 24, 3),
    Sketcher.Constraint("Horizontal", 16, 3, 26, 3),
    Sketcher.Constraint("Horizontal", 12, 3, 30, 3),
    Sketcher.Constraint("Horizontal", 8, 3, 34, 3),
    Sketcher.Constraint("Horizontal", 6, 3, 36, 3),
    Sketcher.Constraint("Horizontal", 4, 3, 38, 3),
    Sketcher.Constraint("Horizontal", 62, 3, 68, 3),
    Sketcher.Constraint("Horizontal", 60, 3, 70, 3),
    Sketcher.Constraint("Horizontal", 56, 3, 74, 3),
    Sketcher.Constraint("Horizontal", 52, 3, 78, 3),
    Sketcher.Constraint("Horizontal", 50, 3, 80, 3),
    Sketcher.Constraint("Horizontal", 48, 3, 82, 3),
    Sketcher.Constraint("Horizontal", 19, 2, 22, 1),
    Sketcher.Constraint("Vertical", 40, 3, 46, 3),
    Sketcher.Constraint("Vertical", 38, 3, 48, 3),
    Sketcher.Constraint("Vertical", 34, 3, 52, 3),
    Sketcher.Constraint("Vertical", 30, 3, 56, 3),
    Sketcher.Constraint("Vertical", 28, 3, 58, 3),
    Sketcher.Constraint("Vertical", 26, 3, 60, 3),
    Sketcher.Constraint("Vertical", 22, 3, 64, 3),
    Sketcher.Constraint("Vertical", 20, 3, 66, 3),
    Sketcher.Constraint("Vertical", 14, 3, 72, 3),
    Sketcher.Constraint("Vertical", 10, 3, 76, 3),
    Sketcher.Constraint("Vertical", 2, 3, 84, 3),
    Sketcher.Constraint("Equal", 15, 27),
    Sketcher.Constraint("Equal", 11, 31),
    Sketcher.Constraint("Equal", 3, 39),
    Sketcher.Constraint("Equal", 71, 5),
    Sketcher.Constraint("Equal", 75, 9),
    Sketcher.Constraint("Equal", 83, 17),
    Sketcher.Constraint("Equal", 65, 43),
    Sketcher.Constraint("Equal", 37, 49),
    Sketcher.Constraint("Equal", 33, 53),
    Sketcher.Constraint("Equal", 25, 61),
    Sketcher.Constraint("Equal", 7, 13),
    Sketcher.Constraint("Equal", 23, 41),
    Sketcher.Constraint("Diameter", 88, Q("4.2 mm")),
    Sketcher.Constraint("Radius", 0, Q("0.3 mm")),
    Sketcher.Constraint("Radius", 10, Q("0.5 mm")),
    Sketcher.Constraint("Radius", 2, Q("0.25 mm")),
    Sketcher.Constraint("DistanceX", 15, 2, 15, 1, Q("1.85 mm")),
    Sketcher.Constraint("DistanceX", 11, 1, 11, 2, Q("4.929289 mm")),
    Sketcher.Constraint("DistanceX", 21, 1, 21, 2, Q("5.44135 mm")),
    Sketcher.Constraint("DistanceY", 87, 2, 87, 1, Q("5.399929 mm")),
    Sketcher.Constraint("DistanceX", -1, 1, 12, 3, Q("2012.3605 mm")),
    Sketcher.Constraint("DistanceX", 3, 2, 3, 1, Q("1.320675 mm")),
    Sketcher.Constraint("DistanceX", -1, 1, 0, 3, Q("2012.631211 mm")),
    Sketcher.Constraint("DistanceY", -1, 1, 0, 3, Q("1377.300429 mm")),
    Sketcher.Constraint("DistanceX", -1, 1, 4, 3, Q("2008.881211 mm")),
    Sketcher.Constraint("DistanceX", -1, 1, 88, 3, Q("2016.931211 mm")),
    Sketcher.Constraint("DistanceY", -1, 1, 88, 3, Q("1380.000394 mm")),
])
pad1 = body.newObject("PartDesign::Pad", "Pad")
pad1.Profile = sketch1
pad1.Length = 190

doc.recompute()
